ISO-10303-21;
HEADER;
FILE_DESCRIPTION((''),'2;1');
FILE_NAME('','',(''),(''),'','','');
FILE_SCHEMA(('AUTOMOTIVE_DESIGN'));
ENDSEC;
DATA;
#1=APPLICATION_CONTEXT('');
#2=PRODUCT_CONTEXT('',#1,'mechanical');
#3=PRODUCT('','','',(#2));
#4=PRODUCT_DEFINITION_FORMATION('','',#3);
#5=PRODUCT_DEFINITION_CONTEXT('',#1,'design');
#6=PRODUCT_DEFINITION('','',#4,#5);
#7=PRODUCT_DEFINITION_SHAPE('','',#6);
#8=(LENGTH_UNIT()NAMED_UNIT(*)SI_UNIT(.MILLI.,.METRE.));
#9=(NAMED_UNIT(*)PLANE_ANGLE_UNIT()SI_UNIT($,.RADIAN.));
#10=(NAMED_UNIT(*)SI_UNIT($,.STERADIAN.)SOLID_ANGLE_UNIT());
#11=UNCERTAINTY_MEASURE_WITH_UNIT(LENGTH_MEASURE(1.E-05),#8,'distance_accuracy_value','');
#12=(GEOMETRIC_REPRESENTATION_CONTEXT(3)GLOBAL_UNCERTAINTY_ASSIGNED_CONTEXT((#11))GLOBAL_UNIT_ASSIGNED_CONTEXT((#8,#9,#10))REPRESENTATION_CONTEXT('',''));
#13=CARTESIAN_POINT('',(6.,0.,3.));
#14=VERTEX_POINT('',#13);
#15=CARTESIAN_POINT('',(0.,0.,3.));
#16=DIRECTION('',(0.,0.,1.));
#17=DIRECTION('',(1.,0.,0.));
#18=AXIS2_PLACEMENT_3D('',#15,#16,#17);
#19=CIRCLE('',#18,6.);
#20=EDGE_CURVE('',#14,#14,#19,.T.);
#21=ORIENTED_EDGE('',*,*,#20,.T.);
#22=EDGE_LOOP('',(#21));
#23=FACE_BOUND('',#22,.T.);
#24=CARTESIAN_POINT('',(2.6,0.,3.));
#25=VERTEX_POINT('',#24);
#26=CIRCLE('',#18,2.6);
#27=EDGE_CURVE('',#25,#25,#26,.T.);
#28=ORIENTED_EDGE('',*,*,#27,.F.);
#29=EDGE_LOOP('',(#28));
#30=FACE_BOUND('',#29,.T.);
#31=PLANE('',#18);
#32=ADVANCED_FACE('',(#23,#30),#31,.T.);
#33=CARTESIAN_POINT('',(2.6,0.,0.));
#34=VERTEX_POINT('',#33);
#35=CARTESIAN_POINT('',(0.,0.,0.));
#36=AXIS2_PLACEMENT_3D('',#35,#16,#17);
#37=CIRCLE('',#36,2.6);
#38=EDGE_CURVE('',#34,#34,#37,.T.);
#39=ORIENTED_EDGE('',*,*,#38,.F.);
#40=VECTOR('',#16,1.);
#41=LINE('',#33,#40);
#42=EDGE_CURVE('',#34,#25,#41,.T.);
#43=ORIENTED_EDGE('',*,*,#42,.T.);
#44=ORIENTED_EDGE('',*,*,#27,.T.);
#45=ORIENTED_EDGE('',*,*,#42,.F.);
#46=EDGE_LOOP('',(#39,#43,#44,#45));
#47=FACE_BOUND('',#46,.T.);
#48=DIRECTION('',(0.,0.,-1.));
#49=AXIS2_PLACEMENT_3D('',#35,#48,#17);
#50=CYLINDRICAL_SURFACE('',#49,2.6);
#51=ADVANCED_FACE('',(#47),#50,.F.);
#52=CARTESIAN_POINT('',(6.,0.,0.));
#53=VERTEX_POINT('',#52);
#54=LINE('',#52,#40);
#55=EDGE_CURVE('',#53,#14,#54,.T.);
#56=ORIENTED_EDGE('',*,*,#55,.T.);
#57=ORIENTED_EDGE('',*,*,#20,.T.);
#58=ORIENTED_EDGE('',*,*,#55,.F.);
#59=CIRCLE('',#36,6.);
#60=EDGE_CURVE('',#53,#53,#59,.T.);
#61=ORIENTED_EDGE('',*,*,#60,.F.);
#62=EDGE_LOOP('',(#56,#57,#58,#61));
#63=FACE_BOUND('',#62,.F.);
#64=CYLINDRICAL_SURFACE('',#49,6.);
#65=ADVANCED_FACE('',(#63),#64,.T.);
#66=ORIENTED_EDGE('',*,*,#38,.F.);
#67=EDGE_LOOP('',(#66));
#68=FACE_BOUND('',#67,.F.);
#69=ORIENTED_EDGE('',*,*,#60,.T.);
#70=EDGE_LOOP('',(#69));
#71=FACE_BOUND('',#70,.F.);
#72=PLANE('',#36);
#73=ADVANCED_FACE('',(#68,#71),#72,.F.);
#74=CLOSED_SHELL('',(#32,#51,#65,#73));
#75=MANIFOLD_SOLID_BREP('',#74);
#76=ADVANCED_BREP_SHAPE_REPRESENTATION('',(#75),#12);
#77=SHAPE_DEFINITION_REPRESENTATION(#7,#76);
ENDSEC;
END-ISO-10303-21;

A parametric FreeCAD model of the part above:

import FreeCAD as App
import Part
import Sketcher
from FreeCAD import Vector

doc = App.newDocument("Part")
body = doc.addObject("PartDesign::Body", "Body")

# Sketch on XY plane
sketch1 = doc.addObject("Sketcher::SketchObject", "Sketch")
body.addObject(sketch1)
sketch1.AttachmentSupport = (doc.XY_Plane, [""])
sketch1.MapMode = "FlatFace"
sketch1.addGeometry([
    Part.Circle(Vector(0, 0, 0), Vector(0, 0, 1), 6),
    Part.Circle(Vector(0, 0, 0), Vector(0, 0, 1), 2.6),
], False)
sketch1.addConstraint([
    Sketcher.Constraint("Coincident", 0, 3, -1, 1),
    Sketcher.Constraint("Coincident", 1, 3, -1, 1),
    Sketcher.Constraint("Diameter", 0, 12.0),
    Sketcher.Constraint("Diameter", 1, 5.2),
])
pad1 = doc.addObject("PartDesign::Pad", "Pad")
body.addObject(pad1)
pad1.Profile = sketch1
pad1.Length = 3

doc.recompute()
